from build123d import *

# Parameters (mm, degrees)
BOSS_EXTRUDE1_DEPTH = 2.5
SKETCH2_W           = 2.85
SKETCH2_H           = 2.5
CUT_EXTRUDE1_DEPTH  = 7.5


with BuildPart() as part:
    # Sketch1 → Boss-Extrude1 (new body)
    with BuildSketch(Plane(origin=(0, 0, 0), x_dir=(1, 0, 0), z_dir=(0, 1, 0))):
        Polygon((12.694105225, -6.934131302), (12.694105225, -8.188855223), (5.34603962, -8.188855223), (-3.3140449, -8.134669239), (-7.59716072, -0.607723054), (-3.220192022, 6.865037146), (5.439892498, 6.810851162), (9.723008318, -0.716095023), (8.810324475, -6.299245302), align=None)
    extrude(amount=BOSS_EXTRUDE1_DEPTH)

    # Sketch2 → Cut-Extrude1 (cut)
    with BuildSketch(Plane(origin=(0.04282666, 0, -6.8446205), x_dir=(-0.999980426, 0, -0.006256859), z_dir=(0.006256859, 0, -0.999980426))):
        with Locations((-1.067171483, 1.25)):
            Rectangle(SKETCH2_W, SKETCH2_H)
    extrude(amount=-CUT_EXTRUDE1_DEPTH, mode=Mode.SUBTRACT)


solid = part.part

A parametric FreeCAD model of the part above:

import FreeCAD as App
import Part
import Sketcher
from FreeCAD import Vector
Q = App.Units.Quantity


def add_polygon(sketch, points):
    """Adds a closed chain of lines whose ends are joined by coincident constraints."""
    first, n = sketch.GeometryCount, len(points)
    for a, b in zip(points, points[1:] + points[:1]):
        sketch.addGeometry(Part.LineSegment(App.Vector(*a, 0), App.Vector(*b, 0)), False)
    for i in range(n):
        sketch.addConstraint(Sketcher.Constraint("Coincident", first + i, 2, first + (i + 1) % n, 1))

doc = App.newDocument("Part")
body = doc.addObject("PartDesign::Body", "Body")

sketch1 = body.newObject("Sketcher::SketchObject", "Sketch")
sketch1.AttachmentSupport = (doc.getObject("XZ_Plane"), [""])
sketch1.MapMode = "FlatFace"
add_polygon(sketch1, [(12.7, 8.2), (12.7, 6.9), (8.8, 6.3), (9.7, 0.7), (5.4, -6.8), (-3.2, -6.9), (-7.6, 0.6), (-3.3, 8.1), (5.3, 8.2)])
sketch1.addConstraint(Sketcher.Constraint("Vertical", 0))
sketch1.addConstraint(Sketcher.Constraint("Horizontal", 8))
sketch1.addConstraint(Sketcher.Constraint("Perpendicular", 1, 2))
sketch1.addConstraint(Sketcher.Constraint("Parallel", 3, 6))
sketch1.addConstraint(Sketcher.Constraint("Parallel", 4, 7))
sketch1.addConstraint(Sketcher.Constraint("Equal", 3, 4))
sketch1.addConstraint(Sketcher.Constraint("Equal", 4, 5))
sketch1.addConstraint(Sketcher.Constraint("Equal", 5, 6))
sketch1.addConstraint(Sketcher.Constraint("Equal", 6, 7))
sketch1.addConstraint(Sketcher.Constraint("DistanceX", 4, 2, 2, 2, Q("12.9432 mm")))
sketch1.addConstraint(Sketcher.Constraint("Distance", 1, Q("3.935331 mm")))
sketch1.addConstraint(Sketcher.Constraint("DistanceX", 8, 1, 8, 2, Q("7.348066 mm")))
sketch1.addConstraint(Sketcher.Constraint("DistanceY", 0, 2, 0, 1, Q("1.254724 mm")))
sketch1.addConstraint(Sketcher.Constraint("DistanceY", -1, 1, 0, 2, Q("6.934131 mm")))
sketch1.addConstraint(Sketcher.Constraint("DistanceX", -1, 1, 2, 2, Q("9.723008 mm")))
sketch1.addConstraint(Sketcher.Constraint("DistanceY", 3, 2, -1, 1, Q("6.810851 mm")))
sketch1.addConstraint(Sketcher.Constraint("DistanceX", 5, 2, -1, 1, Q("7.597161 mm")))
sketch1.addConstraint(Sketcher.Constraint("DistanceY", -1, 1, 6, 2, Q("8.134669 mm")))
pad1 = body.newObject("PartDesign::Pad", "Pad")
pad1.Profile = sketch1
pad1.Length = 2.5
pad1.Reversed = True

sketch2 = body.newObject("Sketcher::SketchObject", "Sketch001")
sketch2.Placement = App.Placement(Vector(0.042827, 0, -6.844621), App.Rotation(Vector(-0.999980426, 0, -0.006256859), Vector(0, 1.000000001, 0), Vector(0.006256859, 0, -0.999980426), "ZXY"))
add_polygon(sketch2, [(-2.5, 2.5), (-2.5, 0), (0.4, 0), (0.4, 2.5)])
sketch2.addConstraint(Sketcher.Constraint("Vertical", 0))
sketch2.addConstraint(Sketcher.Constraint("Horizontal", 1))
sketch2.addConstraint(Sketcher.Constraint("Vertical", 2))
sketch2.addConstraint(Sketcher.Constraint("Horizontal", 3))
sketch2.addConstraint(Sketcher.Constraint("PointOnObject", 0, 2, -1))
sketch2.addConstraint(Sketcher.Constraint("DistanceY", 0, 2, 0, 1, Q("2.5 mm")))
sketch2.addConstraint(Sketcher.Constraint("DistanceX", 1, 1, 1, 2, Q("2.85 mm")))
sketch2.addConstraint(Sketcher.Constraint("DistanceX", 0, 2, -1, 1, Q("2.492171 mm")))
pocket1 = body.newObject("PartDesign::Pocket", "Pocket")
pocket1.Profile = sketch2
pocket1.Length = 7.5

doc.recompute()
